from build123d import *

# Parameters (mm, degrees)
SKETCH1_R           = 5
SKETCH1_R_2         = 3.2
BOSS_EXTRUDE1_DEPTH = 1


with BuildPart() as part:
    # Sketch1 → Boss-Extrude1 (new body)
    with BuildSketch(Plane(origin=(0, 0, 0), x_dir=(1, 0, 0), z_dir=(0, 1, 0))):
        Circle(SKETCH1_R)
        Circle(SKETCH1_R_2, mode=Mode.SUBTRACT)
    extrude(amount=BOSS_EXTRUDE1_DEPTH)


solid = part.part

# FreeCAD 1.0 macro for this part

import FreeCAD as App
import Part
import Sketcher

V = App.Vector
Q = App.Units.Quantity

doc = App.newDocument("Part")
body = doc.addObject("PartDesign::Body", "Body")

# Sketch on XZ plane
sketch1 = body.newObject("Sketcher::SketchObject", "Sketch")
sketch1.AttachmentSupport = (doc.getObject("XZ_Plane"), [""])
sketch1.MapMode = "FlatFace"
sketch1.addGeometry(Part.Circle(V(0, 0, 0), V(0, 0, 1), 5), False)
sketch1.addGeometry(Part.Circle(V(0, 0, 0), V(0, 0, 1), 3.2), False)
sketch1.addConstraint(Sketcher.Constraint("Coincident", 0, 3, -1, 1))
sketch1.addConstraint(Sketcher.Constraint("Coincident", 1, 3, -1, 1))
sketch1.addConstraint(Sketcher.Constraint("Diameter", 0, Q("10 mm")))
sketch1.addConstraint(Sketcher.Constraint("Diameter", 1, Q("6.4 mm")))
pad1 = body.newObject("PartDesign::Pad", "Pad")
pad1.Profile = sketch1
pad1.Length = 1
pad1.Reversed = True

doc.recompute()
